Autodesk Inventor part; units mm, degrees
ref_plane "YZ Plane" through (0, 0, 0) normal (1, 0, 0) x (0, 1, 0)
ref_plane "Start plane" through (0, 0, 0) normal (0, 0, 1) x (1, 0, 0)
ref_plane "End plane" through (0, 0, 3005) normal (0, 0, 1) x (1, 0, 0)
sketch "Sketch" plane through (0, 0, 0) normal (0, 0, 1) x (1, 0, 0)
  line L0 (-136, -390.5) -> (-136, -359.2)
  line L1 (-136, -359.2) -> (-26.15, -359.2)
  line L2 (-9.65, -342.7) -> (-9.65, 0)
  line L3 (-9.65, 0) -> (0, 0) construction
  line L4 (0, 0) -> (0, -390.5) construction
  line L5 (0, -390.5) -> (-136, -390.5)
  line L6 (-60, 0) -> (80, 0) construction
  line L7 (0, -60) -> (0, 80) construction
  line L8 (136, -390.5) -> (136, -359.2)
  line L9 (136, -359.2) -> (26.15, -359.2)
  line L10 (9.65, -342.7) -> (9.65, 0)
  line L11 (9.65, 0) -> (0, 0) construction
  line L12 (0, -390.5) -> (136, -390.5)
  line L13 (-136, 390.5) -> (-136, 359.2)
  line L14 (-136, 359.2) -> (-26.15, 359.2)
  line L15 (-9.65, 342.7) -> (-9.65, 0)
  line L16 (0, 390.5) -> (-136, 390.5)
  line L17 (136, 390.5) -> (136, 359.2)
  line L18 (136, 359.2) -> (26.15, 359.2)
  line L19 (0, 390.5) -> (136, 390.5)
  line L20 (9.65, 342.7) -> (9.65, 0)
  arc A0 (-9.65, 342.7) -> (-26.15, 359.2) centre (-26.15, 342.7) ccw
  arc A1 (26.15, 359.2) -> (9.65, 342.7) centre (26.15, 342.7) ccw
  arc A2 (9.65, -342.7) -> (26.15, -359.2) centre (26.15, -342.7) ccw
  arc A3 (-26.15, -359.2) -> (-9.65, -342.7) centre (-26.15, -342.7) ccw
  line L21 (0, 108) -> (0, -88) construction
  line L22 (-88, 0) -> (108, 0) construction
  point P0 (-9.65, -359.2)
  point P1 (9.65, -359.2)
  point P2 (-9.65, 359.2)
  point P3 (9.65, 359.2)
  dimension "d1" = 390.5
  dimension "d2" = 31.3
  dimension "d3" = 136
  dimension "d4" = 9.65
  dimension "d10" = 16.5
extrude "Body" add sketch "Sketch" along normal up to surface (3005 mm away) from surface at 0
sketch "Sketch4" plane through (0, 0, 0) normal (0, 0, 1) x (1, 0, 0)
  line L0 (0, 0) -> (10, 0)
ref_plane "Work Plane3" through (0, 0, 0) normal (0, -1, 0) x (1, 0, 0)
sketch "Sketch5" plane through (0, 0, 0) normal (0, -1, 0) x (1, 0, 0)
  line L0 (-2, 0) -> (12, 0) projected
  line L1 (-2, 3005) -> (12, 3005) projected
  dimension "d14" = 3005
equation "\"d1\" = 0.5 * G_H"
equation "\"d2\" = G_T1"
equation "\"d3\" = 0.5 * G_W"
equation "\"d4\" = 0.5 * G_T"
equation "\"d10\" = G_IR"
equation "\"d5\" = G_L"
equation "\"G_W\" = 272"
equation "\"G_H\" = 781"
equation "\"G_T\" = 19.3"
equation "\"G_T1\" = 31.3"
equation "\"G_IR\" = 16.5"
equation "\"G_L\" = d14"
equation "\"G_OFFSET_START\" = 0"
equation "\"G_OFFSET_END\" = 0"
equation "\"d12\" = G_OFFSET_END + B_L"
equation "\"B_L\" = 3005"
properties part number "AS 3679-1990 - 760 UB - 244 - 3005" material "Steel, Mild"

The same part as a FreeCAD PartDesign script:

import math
import FreeCAD as App
import Part
import Sketcher
from FreeCAD import Vector
Q = App.Units.Quantity

doc = App.newDocument("Part")
body = doc.addObject("PartDesign::Body", "Body")

# Sketch on XY plane
sketch1 = body.newObject("Sketcher::SketchObject", "Sketch")
sketch1.AttachmentSupport = (doc.getObject("XY_Plane"), [""])
sketch1.MapMode = "FlatFace"
sketch1.addGeometry([
    Part.LineSegment(Vector(-136, -359, 0), Vector(-136, -390, 0)),  # 0
    Part.LineSegment(Vector(-136, -390, 0), Vector(136, -390, 0)),  # 1
    Part.LineSegment(Vector(136, -390, 0), Vector(136, -359, 0)),  # 2
    Part.LineSegment(Vector(136, -359, 0), Vector(26, -359, 0)),  # 3
    Part.ArcOfCircle(Part.Circle(Vector(26, -343, 0), Vector(0, 0, 1), 16), math.radians(180), math.radians(270)),  # 4
    Part.LineSegment(Vector(10, -343, 0), Vector(10, 343, 0)),  # 5
    Part.ArcOfCircle(Part.Circle(Vector(26, 343, 0), Vector(0, 0, 1), 16), math.radians(90), math.radians(180)),  # 6
    Part.LineSegment(Vector(26, 359, 0), Vector(136, 359, 0)),  # 7
    Part.LineSegment(Vector(136, 359, 0), Vector(136, 390, 0)),  # 8
    Part.LineSegment(Vector(136, 390, 0), Vector(-136, 390, 0)),  # 9
    Part.LineSegment(Vector(-136, 390, 0), Vector(-136, 359, 0)),  # 10
    Part.LineSegment(Vector(-136, 359, 0), Vector(-26, 359, 0)),  # 11
    Part.ArcOfCircle(Part.Circle(Vector(-26, 343, 0), Vector(0, 0, 1), 16), math.radians(0), math.radians(90)),  # 12
    Part.LineSegment(Vector(-10, 343, 0), Vector(-10, -343, 0)),  # 13
    Part.ArcOfCircle(Part.Circle(Vector(-26, -343, 0), Vector(0, 0, 1), 16), math.radians(-90), math.radians(0)),  # 14
    Part.LineSegment(Vector(-26, -359, 0), Vector(-136, -359, 0)),  # 15
], False)
sketch1.addConstraint([
    Sketcher.Constraint("Coincident", 0, 2, 1, 1),
    Sketcher.Constraint("Coincident", 1, 2, 2, 1),
    Sketcher.Constraint("Coincident", 2, 2, 3, 1),
    Sketcher.Constraint("Tangent", 3, 2, 4, 2),
    Sketcher.Constraint("Tangent", 4, 1, 5, 1),
    Sketcher.Constraint("Tangent", 5, 2, 6, 2),
    Sketcher.Constraint("Tangent", 6, 1, 7, 1),
    Sketcher.Constraint("Coincident", 7, 2, 8, 1),
    Sketcher.Constraint("Coincident", 8, 2, 9, 1),
    Sketcher.Constraint("Coincident", 9, 2, 10, 1),
    Sketcher.Constraint("Coincident", 10, 2, 11, 1),
    Sketcher.Constraint("Tangent", 11, 2, 12, 2),
    Sketcher.Constraint("Tangent", 12, 1, 13, 1),
    Sketcher.Constraint("Tangent", 13, 2, 14, 2),
    Sketcher.Constraint("Tangent", 14, 1, 15, 1),
    Sketcher.Constraint("Coincident", 15, 2, 0, 1),
    Sketcher.Constraint("Vertical", 0),
    Sketcher.Constraint("Horizontal", 1),
    Sketcher.Constraint("Vertical", 2),
    Sketcher.Constraint("Horizontal", 3),
    Sketcher.Constraint("Vertical", 5),
    Sketcher.Constraint("Horizontal", 7),
    Sketcher.Constraint("Vertical", 8),
    Sketcher.Constraint("Horizontal", 9),
    Sketcher.Constraint("Vertical", 10),
    Sketcher.Constraint("Horizontal", 11),
    Sketcher.Constraint("Vertical", 13),
    Sketcher.Constraint("Horizontal", 15),
    Sketcher.Constraint("Equal", 4, 6),
    Sketcher.Constraint("Equal", 6, 12),
    Sketcher.Constraint("Equal", 12, 14),
    Sketcher.Constraint("Symmetric", 4, 3, 12, 3, -1, 1),
    Sketcher.Constraint("Symmetric", 0, 2, 8, 2, -1, 1),
    Sketcher.Constraint("Symmetric", 7, 2, 10, 2, -2),
    Sketcher.Constraint("Symmetric", 2, 2, 15, 2, -2),
    Sketcher.Constraint("Radius", 4, Q("16.5 mm")),
    Sketcher.Constraint("DistanceY", 0, 2, 0, 1, Q("31.3 mm")),
    Sketcher.Constraint("DistanceX", 0, 2, -1, 1, Q("136 mm")),
    Sketcher.Constraint("DistanceY", 0, 2, -1, 1, Q("390.5 mm")),
    Sketcher.Constraint("DistanceX", -1, 1, 4, 1, Q("9.65 mm")),
])
pad1 = body.newObject("PartDesign::Pad", "Pad")
pad1.Profile = sketch1
pad1.Length = 3005

doc.recompute()
